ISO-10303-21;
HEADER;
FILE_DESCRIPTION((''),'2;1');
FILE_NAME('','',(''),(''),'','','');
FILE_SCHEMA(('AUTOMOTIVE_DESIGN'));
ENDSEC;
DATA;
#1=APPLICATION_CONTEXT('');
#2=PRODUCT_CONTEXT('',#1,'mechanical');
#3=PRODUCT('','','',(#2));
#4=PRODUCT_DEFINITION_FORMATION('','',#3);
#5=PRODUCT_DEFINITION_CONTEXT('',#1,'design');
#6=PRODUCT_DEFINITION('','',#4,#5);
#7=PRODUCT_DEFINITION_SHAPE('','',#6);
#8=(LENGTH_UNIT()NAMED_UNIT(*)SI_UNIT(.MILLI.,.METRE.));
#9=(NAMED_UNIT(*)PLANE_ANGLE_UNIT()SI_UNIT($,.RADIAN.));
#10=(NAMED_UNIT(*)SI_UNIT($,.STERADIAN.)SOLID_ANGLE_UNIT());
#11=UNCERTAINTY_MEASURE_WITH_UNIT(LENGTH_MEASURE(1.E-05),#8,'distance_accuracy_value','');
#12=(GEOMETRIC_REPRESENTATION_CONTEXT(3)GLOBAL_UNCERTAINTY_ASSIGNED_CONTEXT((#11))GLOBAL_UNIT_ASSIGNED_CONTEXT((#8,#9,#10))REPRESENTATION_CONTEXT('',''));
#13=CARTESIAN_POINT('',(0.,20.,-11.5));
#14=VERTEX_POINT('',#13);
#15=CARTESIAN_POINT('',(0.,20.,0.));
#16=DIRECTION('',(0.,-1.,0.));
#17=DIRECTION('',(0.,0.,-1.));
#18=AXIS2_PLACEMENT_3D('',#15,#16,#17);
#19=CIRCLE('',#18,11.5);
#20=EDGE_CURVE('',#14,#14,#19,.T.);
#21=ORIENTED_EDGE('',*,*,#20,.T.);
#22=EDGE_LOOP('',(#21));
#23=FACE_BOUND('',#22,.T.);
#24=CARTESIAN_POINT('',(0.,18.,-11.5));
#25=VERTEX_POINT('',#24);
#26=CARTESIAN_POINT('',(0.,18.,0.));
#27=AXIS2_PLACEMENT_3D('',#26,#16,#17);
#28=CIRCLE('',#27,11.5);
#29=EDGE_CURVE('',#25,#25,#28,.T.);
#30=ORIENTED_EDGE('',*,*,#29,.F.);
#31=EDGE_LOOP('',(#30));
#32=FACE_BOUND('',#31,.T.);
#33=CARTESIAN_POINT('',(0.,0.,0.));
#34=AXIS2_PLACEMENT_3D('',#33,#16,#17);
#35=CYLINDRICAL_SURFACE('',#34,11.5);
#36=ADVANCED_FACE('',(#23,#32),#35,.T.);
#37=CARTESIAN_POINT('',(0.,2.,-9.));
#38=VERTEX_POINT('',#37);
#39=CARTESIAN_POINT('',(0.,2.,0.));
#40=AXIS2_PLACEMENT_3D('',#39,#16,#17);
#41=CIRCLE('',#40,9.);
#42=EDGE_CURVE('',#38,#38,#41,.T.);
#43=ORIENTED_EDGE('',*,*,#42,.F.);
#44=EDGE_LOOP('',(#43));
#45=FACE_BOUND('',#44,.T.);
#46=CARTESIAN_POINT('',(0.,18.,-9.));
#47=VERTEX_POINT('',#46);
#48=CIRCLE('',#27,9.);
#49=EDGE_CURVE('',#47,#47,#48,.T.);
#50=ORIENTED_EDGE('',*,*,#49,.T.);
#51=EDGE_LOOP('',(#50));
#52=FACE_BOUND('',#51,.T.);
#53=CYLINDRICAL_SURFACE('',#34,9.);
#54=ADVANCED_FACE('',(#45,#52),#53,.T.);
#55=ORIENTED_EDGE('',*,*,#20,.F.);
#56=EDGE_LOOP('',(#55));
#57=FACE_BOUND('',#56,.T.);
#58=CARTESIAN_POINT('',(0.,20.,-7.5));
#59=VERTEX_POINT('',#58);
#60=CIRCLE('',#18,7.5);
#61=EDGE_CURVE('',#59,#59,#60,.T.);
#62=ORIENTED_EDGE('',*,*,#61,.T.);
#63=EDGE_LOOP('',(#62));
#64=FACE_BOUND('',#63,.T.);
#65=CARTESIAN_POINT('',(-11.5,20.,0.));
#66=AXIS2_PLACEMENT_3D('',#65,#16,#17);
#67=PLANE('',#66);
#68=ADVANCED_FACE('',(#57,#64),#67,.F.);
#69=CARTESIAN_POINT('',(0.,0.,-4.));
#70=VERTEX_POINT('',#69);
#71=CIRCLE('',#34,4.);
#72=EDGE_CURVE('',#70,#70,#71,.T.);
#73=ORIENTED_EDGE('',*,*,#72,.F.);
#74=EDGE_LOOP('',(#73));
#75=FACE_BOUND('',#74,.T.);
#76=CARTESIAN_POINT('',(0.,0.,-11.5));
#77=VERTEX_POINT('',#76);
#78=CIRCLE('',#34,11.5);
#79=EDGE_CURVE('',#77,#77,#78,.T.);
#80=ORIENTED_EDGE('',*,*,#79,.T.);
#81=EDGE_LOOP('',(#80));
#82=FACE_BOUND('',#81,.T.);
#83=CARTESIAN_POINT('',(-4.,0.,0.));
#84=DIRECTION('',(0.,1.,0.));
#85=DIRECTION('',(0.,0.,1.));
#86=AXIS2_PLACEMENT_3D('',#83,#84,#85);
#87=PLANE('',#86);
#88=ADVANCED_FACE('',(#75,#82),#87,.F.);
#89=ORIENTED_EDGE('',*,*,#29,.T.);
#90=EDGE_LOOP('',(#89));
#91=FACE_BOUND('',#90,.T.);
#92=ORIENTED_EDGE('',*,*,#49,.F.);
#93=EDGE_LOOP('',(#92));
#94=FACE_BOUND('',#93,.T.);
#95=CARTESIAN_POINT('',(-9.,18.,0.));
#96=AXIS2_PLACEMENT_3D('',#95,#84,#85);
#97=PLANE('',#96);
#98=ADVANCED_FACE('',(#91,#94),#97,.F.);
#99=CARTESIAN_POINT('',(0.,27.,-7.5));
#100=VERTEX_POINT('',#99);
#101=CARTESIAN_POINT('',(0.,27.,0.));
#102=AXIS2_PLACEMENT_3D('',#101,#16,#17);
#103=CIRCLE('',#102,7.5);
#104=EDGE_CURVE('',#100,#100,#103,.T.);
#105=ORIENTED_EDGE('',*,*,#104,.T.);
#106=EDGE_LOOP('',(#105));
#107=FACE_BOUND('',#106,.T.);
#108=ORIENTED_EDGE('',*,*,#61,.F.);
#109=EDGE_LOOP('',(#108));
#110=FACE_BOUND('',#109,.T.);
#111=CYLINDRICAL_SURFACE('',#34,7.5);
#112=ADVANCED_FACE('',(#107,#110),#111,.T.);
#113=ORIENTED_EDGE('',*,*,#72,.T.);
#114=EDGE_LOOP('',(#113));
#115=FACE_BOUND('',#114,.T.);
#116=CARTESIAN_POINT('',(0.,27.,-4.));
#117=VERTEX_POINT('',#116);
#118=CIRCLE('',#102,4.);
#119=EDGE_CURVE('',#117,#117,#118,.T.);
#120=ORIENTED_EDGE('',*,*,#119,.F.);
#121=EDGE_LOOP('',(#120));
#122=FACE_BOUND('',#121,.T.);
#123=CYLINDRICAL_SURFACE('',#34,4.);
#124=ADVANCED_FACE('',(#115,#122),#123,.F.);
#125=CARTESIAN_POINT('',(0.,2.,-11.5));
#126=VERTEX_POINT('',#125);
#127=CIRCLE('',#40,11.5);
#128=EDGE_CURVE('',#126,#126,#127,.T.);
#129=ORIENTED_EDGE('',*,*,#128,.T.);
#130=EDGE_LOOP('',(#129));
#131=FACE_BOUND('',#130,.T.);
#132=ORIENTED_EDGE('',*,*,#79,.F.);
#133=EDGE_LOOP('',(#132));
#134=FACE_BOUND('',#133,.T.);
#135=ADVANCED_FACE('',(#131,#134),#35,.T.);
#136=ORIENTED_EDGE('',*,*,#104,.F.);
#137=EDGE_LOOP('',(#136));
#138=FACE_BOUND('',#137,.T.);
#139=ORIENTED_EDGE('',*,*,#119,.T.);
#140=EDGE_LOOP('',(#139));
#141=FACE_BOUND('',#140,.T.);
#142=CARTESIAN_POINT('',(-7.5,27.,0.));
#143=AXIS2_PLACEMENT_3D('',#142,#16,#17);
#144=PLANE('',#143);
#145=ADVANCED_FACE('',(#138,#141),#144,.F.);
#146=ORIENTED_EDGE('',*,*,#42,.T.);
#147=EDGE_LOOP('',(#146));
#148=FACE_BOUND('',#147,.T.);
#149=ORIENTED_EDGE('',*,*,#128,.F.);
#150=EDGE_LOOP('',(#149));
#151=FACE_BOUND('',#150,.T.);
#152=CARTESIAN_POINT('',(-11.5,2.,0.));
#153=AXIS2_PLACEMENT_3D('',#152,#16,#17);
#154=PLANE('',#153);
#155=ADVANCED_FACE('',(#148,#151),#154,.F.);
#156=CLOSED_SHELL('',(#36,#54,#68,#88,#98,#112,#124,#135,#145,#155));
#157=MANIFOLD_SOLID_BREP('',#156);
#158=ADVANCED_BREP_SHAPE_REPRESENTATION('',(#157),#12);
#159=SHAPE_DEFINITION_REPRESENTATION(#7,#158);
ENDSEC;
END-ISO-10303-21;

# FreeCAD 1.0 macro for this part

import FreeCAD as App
import Part
import Sketcher

V = App.Vector


def add_polygon(sketch, points):
    """Adds a closed chain of lines whose ends are joined by coincident constraints."""
    first, n = sketch.GeometryCount, len(points)
    for a, b in zip(points, points[1:] + points[:1]):
        sketch.addGeometry(Part.LineSegment(App.Vector(*a, 0), App.Vector(*b, 0)), False)
    for i in range(n):
        sketch.addConstraint(Sketcher.Constraint("Coincident", first + i, 2, first + (i + 1) % n, 1))

doc = App.newDocument("Part")
body = doc.addObject("PartDesign::Body", "Body")

# Sketch on XY plane
sketch1 = body.newObject("Sketcher::SketchObject", "Sketch")
sketch1.AttachmentSupport = (doc.getObject("XY_Plane"), [""])
sketch1.MapMode = "FlatFace"
add_polygon(sketch1, [(-11.5, 0), (-4, 0), (-4, 27), (-7.5, 27), (-7.5, 20), (-11.5, 20), (-11.5, 18), (-9, 18), (-9, 2), (-11.5, 2)])  # lines 0-9
sketch1.addConstraint([
    Sketcher.Constraint("Horizontal", 0),
    Sketcher.Constraint("Vertical", 1),
    Sketcher.Constraint("Horizontal", 2),
    Sketcher.Constraint("Vertical", 3),
    Sketcher.Constraint("Horizontal", 4),
    Sketcher.Constraint("Vertical", 5),
    Sketcher.Constraint("Horizontal", 6),
    Sketcher.Constraint("Vertical", 7),
    Sketcher.Constraint("Horizontal", 8),
    Sketcher.Constraint("Vertical", 9),
    Sketcher.Constraint("PointOnObject", 0, 2, -1),
    Sketcher.Constraint("Vertical", 5, 2, 8, 2),
    Sketcher.Constraint("Equal", 5, 9),
    Sketcher.Constraint("DistanceX", 4, 2, 4, 1, 4.0),
    Sketcher.Constraint("DistanceY", 1, 1, 1, 2, 27.0),
    Sketcher.Constraint("DistanceY", 3, 2, 3, 1, 7.0),
    Sketcher.Constraint("DistanceY", 5, 2, 5, 1, 2.0),
    Sketcher.Constraint("DistanceX", 0, 1, 0, 2, 7.5),
    Sketcher.Constraint("DistanceX", 6, 1, 6, 2, 2.5),
    Sketcher.Constraint("DistanceX", 0, 2, -1, 1, 4.0),
])
revolution = body.newObject("PartDesign::Revolution", "Revolution")
revolution.Profile = sketch1
revolution.ReferenceAxis = (sketch1, ["V_Axis"])
revolution.Angle = 360

doc.recompute()
